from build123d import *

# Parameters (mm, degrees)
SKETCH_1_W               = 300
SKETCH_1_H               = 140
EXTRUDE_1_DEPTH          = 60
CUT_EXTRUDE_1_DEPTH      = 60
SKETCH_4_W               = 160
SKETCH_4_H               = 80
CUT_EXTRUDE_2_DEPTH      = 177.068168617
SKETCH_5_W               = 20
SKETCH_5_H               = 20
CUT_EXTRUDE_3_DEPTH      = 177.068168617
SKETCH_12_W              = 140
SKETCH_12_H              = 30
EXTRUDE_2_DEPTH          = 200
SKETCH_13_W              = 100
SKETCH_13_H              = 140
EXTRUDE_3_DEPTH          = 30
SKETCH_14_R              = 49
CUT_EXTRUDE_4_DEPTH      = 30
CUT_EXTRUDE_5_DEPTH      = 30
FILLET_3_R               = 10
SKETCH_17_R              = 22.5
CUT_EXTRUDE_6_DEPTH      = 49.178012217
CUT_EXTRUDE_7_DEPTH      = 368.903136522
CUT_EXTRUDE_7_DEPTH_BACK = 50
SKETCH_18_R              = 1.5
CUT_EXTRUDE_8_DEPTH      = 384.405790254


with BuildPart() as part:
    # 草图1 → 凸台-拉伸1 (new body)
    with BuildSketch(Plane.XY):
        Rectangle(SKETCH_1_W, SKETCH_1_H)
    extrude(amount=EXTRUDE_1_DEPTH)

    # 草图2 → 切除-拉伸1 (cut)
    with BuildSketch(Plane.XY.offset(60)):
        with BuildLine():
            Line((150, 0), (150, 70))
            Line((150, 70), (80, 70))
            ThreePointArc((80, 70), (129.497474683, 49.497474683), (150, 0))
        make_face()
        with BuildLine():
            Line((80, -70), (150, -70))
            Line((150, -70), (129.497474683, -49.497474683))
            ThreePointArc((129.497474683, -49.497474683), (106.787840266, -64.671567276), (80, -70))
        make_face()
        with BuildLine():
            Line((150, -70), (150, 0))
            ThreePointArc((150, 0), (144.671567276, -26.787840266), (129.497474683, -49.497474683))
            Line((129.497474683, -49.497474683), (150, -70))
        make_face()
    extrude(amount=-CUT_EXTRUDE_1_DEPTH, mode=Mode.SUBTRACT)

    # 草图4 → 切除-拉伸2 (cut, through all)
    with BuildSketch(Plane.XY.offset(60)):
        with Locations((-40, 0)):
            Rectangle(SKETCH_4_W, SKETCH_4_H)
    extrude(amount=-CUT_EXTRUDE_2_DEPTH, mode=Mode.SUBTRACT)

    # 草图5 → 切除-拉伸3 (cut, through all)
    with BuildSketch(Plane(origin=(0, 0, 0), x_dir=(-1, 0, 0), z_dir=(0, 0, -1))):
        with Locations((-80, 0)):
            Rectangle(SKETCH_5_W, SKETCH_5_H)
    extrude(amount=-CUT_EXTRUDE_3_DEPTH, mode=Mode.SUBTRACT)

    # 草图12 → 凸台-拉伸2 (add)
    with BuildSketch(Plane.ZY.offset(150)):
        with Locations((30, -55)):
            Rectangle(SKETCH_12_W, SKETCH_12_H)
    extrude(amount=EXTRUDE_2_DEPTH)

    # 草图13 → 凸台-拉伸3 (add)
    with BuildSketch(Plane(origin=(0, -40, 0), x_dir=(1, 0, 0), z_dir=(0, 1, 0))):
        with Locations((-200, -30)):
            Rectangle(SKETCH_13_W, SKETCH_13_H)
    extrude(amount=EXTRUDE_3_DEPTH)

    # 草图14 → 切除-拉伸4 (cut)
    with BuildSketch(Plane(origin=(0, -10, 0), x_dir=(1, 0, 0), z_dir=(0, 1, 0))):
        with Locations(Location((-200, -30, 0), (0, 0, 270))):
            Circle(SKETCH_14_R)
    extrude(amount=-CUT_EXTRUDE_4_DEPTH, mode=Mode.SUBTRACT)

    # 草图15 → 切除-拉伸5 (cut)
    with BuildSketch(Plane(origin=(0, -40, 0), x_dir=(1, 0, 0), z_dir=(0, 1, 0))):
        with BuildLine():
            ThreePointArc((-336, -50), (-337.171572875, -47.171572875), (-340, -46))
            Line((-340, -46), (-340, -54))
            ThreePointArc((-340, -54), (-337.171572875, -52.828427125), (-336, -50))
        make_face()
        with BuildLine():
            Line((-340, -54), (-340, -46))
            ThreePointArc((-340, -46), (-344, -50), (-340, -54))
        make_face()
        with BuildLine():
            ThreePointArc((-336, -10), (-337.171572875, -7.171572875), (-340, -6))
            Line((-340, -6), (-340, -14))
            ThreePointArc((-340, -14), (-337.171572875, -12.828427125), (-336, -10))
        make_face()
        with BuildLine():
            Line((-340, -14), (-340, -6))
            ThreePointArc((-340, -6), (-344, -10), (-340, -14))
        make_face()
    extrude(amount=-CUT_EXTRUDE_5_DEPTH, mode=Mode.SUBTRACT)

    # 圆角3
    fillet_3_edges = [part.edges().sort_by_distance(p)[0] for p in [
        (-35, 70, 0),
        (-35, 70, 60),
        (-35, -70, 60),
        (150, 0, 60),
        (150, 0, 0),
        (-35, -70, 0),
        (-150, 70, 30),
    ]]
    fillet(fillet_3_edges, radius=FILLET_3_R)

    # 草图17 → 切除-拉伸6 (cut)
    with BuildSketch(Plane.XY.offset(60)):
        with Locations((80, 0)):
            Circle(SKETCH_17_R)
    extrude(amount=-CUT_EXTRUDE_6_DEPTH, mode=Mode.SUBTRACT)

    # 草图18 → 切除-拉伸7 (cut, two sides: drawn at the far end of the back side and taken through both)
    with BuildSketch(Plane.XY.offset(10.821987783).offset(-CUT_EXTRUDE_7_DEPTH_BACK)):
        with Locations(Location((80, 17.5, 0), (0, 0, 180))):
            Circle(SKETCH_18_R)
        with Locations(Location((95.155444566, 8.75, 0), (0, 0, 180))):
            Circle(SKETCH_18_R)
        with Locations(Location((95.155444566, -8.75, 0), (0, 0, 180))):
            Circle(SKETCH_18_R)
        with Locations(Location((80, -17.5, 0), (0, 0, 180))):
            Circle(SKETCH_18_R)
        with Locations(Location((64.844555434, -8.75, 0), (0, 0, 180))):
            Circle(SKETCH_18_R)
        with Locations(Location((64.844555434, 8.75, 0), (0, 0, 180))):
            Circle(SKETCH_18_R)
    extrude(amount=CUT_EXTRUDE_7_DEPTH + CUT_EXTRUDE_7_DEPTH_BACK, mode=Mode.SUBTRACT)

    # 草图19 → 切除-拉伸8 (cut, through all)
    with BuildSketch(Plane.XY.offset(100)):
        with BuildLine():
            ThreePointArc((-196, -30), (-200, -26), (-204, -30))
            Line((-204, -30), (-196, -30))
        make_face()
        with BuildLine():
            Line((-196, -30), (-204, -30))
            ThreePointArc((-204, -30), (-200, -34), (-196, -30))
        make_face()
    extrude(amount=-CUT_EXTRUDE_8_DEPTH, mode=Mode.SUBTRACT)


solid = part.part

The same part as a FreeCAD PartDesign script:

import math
import FreeCAD as App
import Part
import Sketcher


def edges_at(feature, points):
    """Names of the edges that pass closest to the given points."""
    edges = feature.Shape.Edges
    near = lambda p: min(range(len(edges)), key=lambda i: edges[i].distToShape(Part.Vertex(*p))[0])
    return sorted({f"Edge{near(p) + 1}" for p in points})


def add_polygon(sketch, points):
    """Adds a closed chain of lines whose ends are joined by coincident constraints."""
    first, n = sketch.GeometryCount, len(points)
    for a, b in zip(points, points[1:] + points[:1]):
        sketch.addGeometry(Part.LineSegment(App.Vector(*a, 0), App.Vector(*b, 0)), False)
    for i in range(n):
        sketch.addConstraint(Sketcher.Constraint("Coincident", first + i, 2, first + (i + 1) % n, 1))

doc = App.newDocument("Part")
body = doc.addObject("PartDesign::Body", "Body")

# Sketch on XY plane
sketch1 = body.newObject("Sketcher::SketchObject", "Sketch")
sketch1.AttachmentSupport = (doc.getObject("XY_Plane"), [""])
sketch1.MapMode = "FlatFace"
add_polygon(sketch1, [(-150, 70), (-150, -70), (150, -70), (150, 70)])  # lines 0-3
sketch1.addConstraint([
    Sketcher.Constraint("Vertical", 0),
    Sketcher.Constraint("Horizontal", 1),
    Sketcher.Constraint("Vertical", 2),
    Sketcher.Constraint("Horizontal", 3),
    Sketcher.Constraint("Symmetric", 0, 2, 2, 2, -1, 1),
    Sketcher.Constraint("DistanceX", 1, 1, 1, 2, 300.0),
    Sketcher.Constraint("DistanceY", 0, 2, 0, 1, 140.0),
])
pad1 = body.newObject("PartDesign::Pad", "Pad")
pad1.Profile = sketch1
pad1.Length = 60

# Sketch on XY plane
sketch2 = body.newObject("Sketcher::SketchObject", "Sketch001")
sketch2.AttachmentSupport = (doc.getObject("XY_Plane"), [""])
sketch2.MapMode = "FlatFace"
sketch2.AttachmentOffset = App.Placement(App.Vector(0, 0, 60), App.Rotation())
sketch2.addGeometry([
    Part.LineSegment(App.Vector(150, 0, 0), App.Vector(150, 70, 0)),  # 0
    Part.LineSegment(App.Vector(150, 70, 0), App.Vector(80, 70, 0)),  # 1
    Part.ArcOfCircle(Part.Circle(App.Vector(80, 0, 0), App.Vector(0, 0, 1), 70), math.radians(0), math.radians(90)),  # 2
    Part.LineSegment(App.Vector(80, -70, 0), App.Vector(150, -70, 0)),  # 3
    Part.LineSegment(App.Vector(150, -70, 0), App.Vector(150, 0, 0)),  # 4
    Part.ArcOfCircle(Part.Circle(App.Vector(80, 0, 0), App.Vector(0, 0, 1), 70), math.radians(-45), math.radians(0)),  # 5
    Part.ArcOfCircle(Part.Circle(App.Vector(80, 0, 0), App.Vector(0, 0, 1), 70), math.radians(-90), math.radians(-45)),  # 6
], False)
sketch2.addConstraint([
    Sketcher.Constraint("Coincident", 0, 2, 1, 1),
    Sketcher.Constraint("Tangent", 1, 2, 2, 2),
    Sketcher.Constraint("Tangent", 2, 1, 0, 1),
    Sketcher.Constraint("Coincident", 3, 2, 4, 1),
    Sketcher.Constraint("Tangent", 4, 2, 5, 2),
    Sketcher.Constraint("Tangent", 5, 1, 6, 2),
    Sketcher.Constraint("Tangent", 6, 1, 3, 1),
    Sketcher.Constraint("Vertical", 0),
    Sketcher.Constraint("Horizontal", 1),
    Sketcher.Constraint("Horizontal", 3),
    Sketcher.Constraint("Vertical", 4),
    Sketcher.Constraint("Coincident", 5, 3, 2, 3),
    Sketcher.Constraint("Equal", 2, 5),
    Sketcher.Constraint("Equal", 5, 6),
    Sketcher.Constraint("PointOnObject", 2, 3, -1),
    Sketcher.Constraint("Radius", 2, 70.0),
    Sketcher.Constraint("DistanceX", -1, 1, 2, 3, 80.0),
    Sketcher.Constraint("DistanceX", -1, 1, 5, 1, 129.497475),
])
pocket1 = body.newObject("PartDesign::Pocket", "Pocket")
pocket1.Profile = sketch2
pocket1.Length = 60

# Sketch on XY plane
sketch3 = body.newObject("Sketcher::SketchObject", "Sketch002")
sketch3.AttachmentSupport = (doc.getObject("XY_Plane"), [""])
sketch3.MapMode = "FlatFace"
sketch3.AttachmentOffset = App.Placement(App.Vector(0, 0, 60), App.Rotation())
add_polygon(sketch3, [(-120, 40), (-120, -40), (40, -40), (40, 40)])  # lines 0-3
sketch3.addConstraint([
    Sketcher.Constraint("Vertical", 0),
    Sketcher.Constraint("Horizontal", 1),
    Sketcher.Constraint("Vertical", 2),
    Sketcher.Constraint("Horizontal", 3),
    Sketcher.Constraint("DistanceX", 1, 1, 1, 2, 160.0),
    Sketcher.Constraint("DistanceY", 0, 2, 0, 1, 80.0),
    Sketcher.Constraint("DistanceX", 0, 2, -1, 1, 120.0),
    Sketcher.Constraint("DistanceY", 0, 2, -1, 1, 40.0),
])
pocket2 = body.newObject("PartDesign::Pocket", "Pocket001")
pocket2.Profile = sketch3
pocket2.Type = "ThroughAll"

# Sketch on XY plane
sketch4 = body.newObject("Sketcher::SketchObject", "Sketch003")
sketch4.AttachmentSupport = (doc.getObject("XY_Plane"), [""])
sketch4.MapMode = "FlatFace"
add_polygon(sketch4, [(90, 10), (90, -10), (70, -10), (70, 10)])  # lines 0-3
sketch4.addConstraint([
    Sketcher.Constraint("Vertical", 0),
    Sketcher.Constraint("Horizontal", 1),
    Sketcher.Constraint("Vertical", 2),
    Sketcher.Constraint("Horizontal", 3),
    Sketcher.Constraint("Equal", 3, 0),
    Sketcher.Constraint("DistanceX", 1, 2, 1, 1, 20.0),
    Sketcher.Constraint("DistanceX", -1, 1, 0, 2, 90.0),
    Sketcher.Constraint("DistanceY", 0, 2, -1, 1, 10.0),
])
pocket3 = body.newObject("PartDesign::Pocket", "Pocket002")
pocket3.Profile = sketch4
pocket3.Type = "ThroughAll"
pocket3.Reversed = True

# Sketch on YZ plane
sketch5 = body.newObject("Sketcher::SketchObject", "Sketch004")
sketch5.AttachmentSupport = (doc.getObject("YZ_Plane"), [""])
sketch5.MapMode = "FlatFace"
sketch5.AttachmentOffset = App.Placement(App.Vector(0, 0, -150), App.Rotation())
add_polygon(sketch5, [(-40, -40), (-70, -40), (-70, 100), (-40, 100)])  # lines 0-3
sketch5.addConstraint([
    Sketcher.Constraint("Horizontal", 0),
    Sketcher.Constraint("Vertical", 1),
    Sketcher.Constraint("Horizontal", 2),
    Sketcher.Constraint("Vertical", 3),
    Sketcher.Constraint("DistanceX", 0, 2, 0, 1, 30.0),
    Sketcher.Constraint("DistanceY", 1, 1, 1, 2, 140.0),
    Sketcher.Constraint("DistanceX", 0, 2, -1, 1, 70.0),
    Sketcher.Constraint("DistanceY", 0, 2, -1, 1, 40.0),
])
pad2 = body.newObject("PartDesign::Pad", "Pad001")
pad2.Profile = sketch5
pad2.Length = 200
pad2.Reversed = True

# Sketch on XZ plane
sketch6 = body.newObject("Sketcher::SketchObject", "Sketch005")
sketch6.AttachmentSupport = (doc.getObject("XZ_Plane"), [""])
sketch6.MapMode = "FlatFace"
sketch6.AttachmentOffset = App.Placement(App.Vector(0, 0, 40), App.Rotation())
add_polygon(sketch6, [(-250, -40), (-250, 100), (-150, 100), (-150, -40)])  # lines 0-3
sketch6.addConstraint([
    Sketcher.Constraint("Vertical", 0),
    Sketcher.Constraint("Horizontal", 1),
    Sketcher.Constraint("Vertical", 2),
    Sketcher.Constraint("Horizontal", 3),
    Sketcher.Constraint("DistanceX", 1, 1, 1, 2, 100.0),
    Sketcher.Constraint("DistanceY", 0, 1, 0, 2, 140.0),
    Sketcher.Constraint("DistanceX", 0, 2, -1, 1, 250.0),
    Sketcher.Constraint("DistanceY", -1, 1, 0, 2, 100.0),
])
pad3 = body.newObject("PartDesign::Pad", "Pad002")
pad3.Profile = sketch6
pad3.Length = 30
pad3.Reversed = True

# Sketch on XZ plane
sketch7 = body.newObject("Sketcher::SketchObject", "Sketch006")
sketch7.AttachmentSupport = (doc.getObject("XZ_Plane"), [""])
sketch7.MapMode = "FlatFace"
sketch7.AttachmentOffset = App.Placement(App.Vector(0, 0, 10), App.Rotation())
sketch7.addGeometry(Part.Circle(App.Vector(-200, 30, 0), App.Vector(0, 0, 1), 49), False)
sketch7.addConstraint([
    Sketcher.Constraint("Diameter", 0, 98.0),
    Sketcher.Constraint("DistanceX", 0, 3, -1, 1, 200.0),
    Sketcher.Constraint("DistanceY", -1, 1, 0, 3, 30.0),
])
pocket4 = body.newObject("PartDesign::Pocket", "Pocket003")
pocket4.Profile = sketch7
pocket4.Length = 30
pocket4.Reversed = True

# Sketch on XZ plane
sketch8 = body.newObject("Sketcher::SketchObject", "Sketch007")
sketch8.AttachmentSupport = (doc.getObject("XZ_Plane"), [""])
sketch8.MapMode = "FlatFace"
sketch8.AttachmentOffset = App.Placement(App.Vector(0, 0, 40), App.Rotation())
sketch8.addGeometry([
    Part.ArcOfCircle(Part.Circle(App.Vector(-340, 50, 0), App.Vector(0, 0, 1), 4), math.radians(-90), math.radians(0)),  # 0
    Part.ArcOfCircle(Part.Circle(App.Vector(-340, 50, 0), App.Vector(0, 0, 1), 4), math.radians(90), math.radians(270)),  # 1
    Part.ArcOfCircle(Part.Circle(App.Vector(-340, 50, 0), App.Vector(0, 0, 1), 4), math.radians(0), math.radians(90)),  # 2
    Part.ArcOfCircle(Part.Circle(App.Vector(-340, 10, 0), App.Vector(0, 0, 1), 4), math.radians(-90), math.radians(0)),  # 3
    Part.ArcOfCircle(Part.Circle(App.Vector(-340, 10, 0), App.Vector(0, 0, 1), 4), math.radians(90), math.radians(270)),  # 4
    Part.ArcOfCircle(Part.Circle(App.Vector(-340, 10, 0), App.Vector(0, 0, 1), 4), math.radians(0), math.radians(90)),  # 5
], False)
sketch8.addConstraint([
    Sketcher.Constraint("Tangent", 0, 1, 1, 2),
    Sketcher.Constraint("Tangent", 1, 1, 2, 2),
    Sketcher.Constraint("Tangent", 2, 1, 0, 2),
    Sketcher.Constraint("Tangent", 3, 1, 4, 2),
    Sketcher.Constraint("Tangent", 4, 1, 5, 2),
    Sketcher.Constraint("Tangent", 5, 1, 3, 2),
    Sketcher.Constraint("Equal", 2, 3),
    Sketcher.Constraint("Horizontal", 1, 3, 2, 1),
    Sketcher.Constraint("Horizontal", 4, 3, 5, 1),
    Sketcher.Constraint("Vertical", 2, 3, 3, 3),
    Sketcher.Constraint("Vertical", 5, 3, 0, 1),
    Sketcher.Constraint("Vertical", 0, 1, 1, 1),
    Sketcher.Constraint("Vertical", 1, 1, 3, 1),
    Sketcher.Constraint("Vertical", 3, 1, 4, 1),
    Sketcher.Constraint("Radius", 0, 4.0),
    Sketcher.Constraint("DistanceX", 0, 3, -1, 1, 340.0),
    Sketcher.Constraint("DistanceY", -1, 1, 0, 3, 50.0),
    Sketcher.Constraint("DistanceY", -1, 1, 3, 3, 10.0),
])
pocket5 = body.newObject("PartDesign::Pocket", "Pocket004")
pocket5.Profile = sketch8
pocket5.Length = 30
pocket5.Reversed = True
doc.recompute()

fillet = body.newObject("PartDesign::Fillet", "Fillet")
fillet.Base = (pocket5, edges_at(pocket5, [
    (-35, 70, 0),
    (-35, 70, 60),
    (-35, -70, 60),
    (144.672, -26.788, 60),
    (144.672, -26.788, 0),
    (-35, -70, 0),
    (-150, 70, 30),
]))
fillet.Radius = 10

# Sketch on XY plane
sketch9 = body.newObject("Sketcher::SketchObject", "Sketch008")
sketch9.AttachmentSupport = (doc.getObject("XY_Plane"), [""])
sketch9.MapMode = "FlatFace"
sketch9.AttachmentOffset = App.Placement(App.Vector(0, 0, 60), App.Rotation())
sketch9.addGeometry(Part.Circle(App.Vector(80, 0, 0), App.Vector(0, 0, 1), 22), False)
sketch9.addConstraint([
    Sketcher.Constraint("PointOnObject", 0, 3, -1),
    Sketcher.Constraint("Diameter", 0, 45.0),
    Sketcher.Constraint("DistanceX", -1, 1, 0, 3, 80.0),
])
pocket6 = body.newObject("PartDesign::Pocket", "Pocket005")
pocket6.Profile = sketch9
pocket6.Length = 49.178012

# Sketch on XY plane
sketch10 = body.newObject("Sketcher::SketchObject", "Sketch009")
sketch10.AttachmentSupport = (doc.getObject("XY_Plane"), [""])
sketch10.MapMode = "FlatFace"
sketch10.AttachmentOffset = App.Placement(App.Vector(0, 0, 10.821988), App.Rotation())
sketch10.addGeometry([
    Part.Circle(App.Vector(80, 17.5, 0), App.Vector(0, 0, 1), 1.5),  # 0
    Part.Circle(App.Vector(95.2, 8.8, 0), App.Vector(0, 0, 1), 1.5),  # 1
    Part.Circle(App.Vector(95.2, -8.8, 0), App.Vector(0, 0, 1), 1.5),  # 2
    Part.Circle(App.Vector(80, -17.5, 0), App.Vector(0, 0, 1), 1.5),  # 3
    Part.Circle(App.Vector(64.8, -8.8, 0), App.Vector(0, 0, 1), 1.5),  # 4
    Part.Circle(App.Vector(64.8, 8.8, 0), App.Vector(0, 0, 1), 1.5),  # 5
], False)
sketch10.addConstraint([
    Sketcher.Constraint("Equal", 0, 1),
    Sketcher.Constraint("Equal", 1, 2),
    Sketcher.Constraint("Equal", 2, 3),
    Sketcher.Constraint("Equal", 3, 4),
    Sketcher.Constraint("Equal", 4, 5),
    Sketcher.Constraint("Symmetric", 1, 3, 2, 3, -1),
    Sketcher.Constraint("Symmetric", 0, 3, 3, 3, -1),
    Sketcher.Constraint("Symmetric", 4, 3, 5, 3, -1),
    Sketcher.Constraint("Horizontal", 2, 3, 4, 3),
    Sketcher.Constraint("Diameter", 0, 3.0),
    Sketcher.Constraint("DistanceX", -1, 1, 0, 3, 80.0),
    Sketcher.Constraint("DistanceY", 3, 3, 0, 3, 35.0),
    Sketcher.Constraint("DistanceY", 2, 3, 1, 3, 17.5),
    Sketcher.Constraint("DistanceX", 4, 3, 2, 3, 30.310889),
    Sketcher.Constraint("DistanceX", -1, 1, 1, 3, 95.155445),
])
pocket7 = body.newObject("PartDesign::Pocket", "Pocket006")
pocket7.Profile = sketch10
pocket7.Type = "ThroughAll"
pocket7.Midplane = True

# Sketch on XY plane
sketch11 = body.newObject("Sketcher::SketchObject", "Sketch010")
sketch11.AttachmentSupport = (doc.getObject("XY_Plane"), [""])
sketch11.MapMode = "FlatFace"
sketch11.AttachmentOffset = App.Placement(App.Vector(0, 0, 100), App.Rotation())
sketch11.addGeometry(Part.Circle(App.Vector(-200, -30, 0), App.Vector(0, 0, 1), 4), False)
sketch11.addConstraint([
    Sketcher.Constraint("Diameter", 0, 8.0),
    Sketcher.Constraint("DistanceX", 0, 3, -1, 1, 200.0),
    Sketcher.Constraint("DistanceY", 0, 3, -1, 1, 30.0),
])
pocket8 = body.newObject("PartDesign::Pocket", "Pocket007")
pocket8.Profile = sketch11
pocket8.Type = "ThroughAll"

doc.recompute()
